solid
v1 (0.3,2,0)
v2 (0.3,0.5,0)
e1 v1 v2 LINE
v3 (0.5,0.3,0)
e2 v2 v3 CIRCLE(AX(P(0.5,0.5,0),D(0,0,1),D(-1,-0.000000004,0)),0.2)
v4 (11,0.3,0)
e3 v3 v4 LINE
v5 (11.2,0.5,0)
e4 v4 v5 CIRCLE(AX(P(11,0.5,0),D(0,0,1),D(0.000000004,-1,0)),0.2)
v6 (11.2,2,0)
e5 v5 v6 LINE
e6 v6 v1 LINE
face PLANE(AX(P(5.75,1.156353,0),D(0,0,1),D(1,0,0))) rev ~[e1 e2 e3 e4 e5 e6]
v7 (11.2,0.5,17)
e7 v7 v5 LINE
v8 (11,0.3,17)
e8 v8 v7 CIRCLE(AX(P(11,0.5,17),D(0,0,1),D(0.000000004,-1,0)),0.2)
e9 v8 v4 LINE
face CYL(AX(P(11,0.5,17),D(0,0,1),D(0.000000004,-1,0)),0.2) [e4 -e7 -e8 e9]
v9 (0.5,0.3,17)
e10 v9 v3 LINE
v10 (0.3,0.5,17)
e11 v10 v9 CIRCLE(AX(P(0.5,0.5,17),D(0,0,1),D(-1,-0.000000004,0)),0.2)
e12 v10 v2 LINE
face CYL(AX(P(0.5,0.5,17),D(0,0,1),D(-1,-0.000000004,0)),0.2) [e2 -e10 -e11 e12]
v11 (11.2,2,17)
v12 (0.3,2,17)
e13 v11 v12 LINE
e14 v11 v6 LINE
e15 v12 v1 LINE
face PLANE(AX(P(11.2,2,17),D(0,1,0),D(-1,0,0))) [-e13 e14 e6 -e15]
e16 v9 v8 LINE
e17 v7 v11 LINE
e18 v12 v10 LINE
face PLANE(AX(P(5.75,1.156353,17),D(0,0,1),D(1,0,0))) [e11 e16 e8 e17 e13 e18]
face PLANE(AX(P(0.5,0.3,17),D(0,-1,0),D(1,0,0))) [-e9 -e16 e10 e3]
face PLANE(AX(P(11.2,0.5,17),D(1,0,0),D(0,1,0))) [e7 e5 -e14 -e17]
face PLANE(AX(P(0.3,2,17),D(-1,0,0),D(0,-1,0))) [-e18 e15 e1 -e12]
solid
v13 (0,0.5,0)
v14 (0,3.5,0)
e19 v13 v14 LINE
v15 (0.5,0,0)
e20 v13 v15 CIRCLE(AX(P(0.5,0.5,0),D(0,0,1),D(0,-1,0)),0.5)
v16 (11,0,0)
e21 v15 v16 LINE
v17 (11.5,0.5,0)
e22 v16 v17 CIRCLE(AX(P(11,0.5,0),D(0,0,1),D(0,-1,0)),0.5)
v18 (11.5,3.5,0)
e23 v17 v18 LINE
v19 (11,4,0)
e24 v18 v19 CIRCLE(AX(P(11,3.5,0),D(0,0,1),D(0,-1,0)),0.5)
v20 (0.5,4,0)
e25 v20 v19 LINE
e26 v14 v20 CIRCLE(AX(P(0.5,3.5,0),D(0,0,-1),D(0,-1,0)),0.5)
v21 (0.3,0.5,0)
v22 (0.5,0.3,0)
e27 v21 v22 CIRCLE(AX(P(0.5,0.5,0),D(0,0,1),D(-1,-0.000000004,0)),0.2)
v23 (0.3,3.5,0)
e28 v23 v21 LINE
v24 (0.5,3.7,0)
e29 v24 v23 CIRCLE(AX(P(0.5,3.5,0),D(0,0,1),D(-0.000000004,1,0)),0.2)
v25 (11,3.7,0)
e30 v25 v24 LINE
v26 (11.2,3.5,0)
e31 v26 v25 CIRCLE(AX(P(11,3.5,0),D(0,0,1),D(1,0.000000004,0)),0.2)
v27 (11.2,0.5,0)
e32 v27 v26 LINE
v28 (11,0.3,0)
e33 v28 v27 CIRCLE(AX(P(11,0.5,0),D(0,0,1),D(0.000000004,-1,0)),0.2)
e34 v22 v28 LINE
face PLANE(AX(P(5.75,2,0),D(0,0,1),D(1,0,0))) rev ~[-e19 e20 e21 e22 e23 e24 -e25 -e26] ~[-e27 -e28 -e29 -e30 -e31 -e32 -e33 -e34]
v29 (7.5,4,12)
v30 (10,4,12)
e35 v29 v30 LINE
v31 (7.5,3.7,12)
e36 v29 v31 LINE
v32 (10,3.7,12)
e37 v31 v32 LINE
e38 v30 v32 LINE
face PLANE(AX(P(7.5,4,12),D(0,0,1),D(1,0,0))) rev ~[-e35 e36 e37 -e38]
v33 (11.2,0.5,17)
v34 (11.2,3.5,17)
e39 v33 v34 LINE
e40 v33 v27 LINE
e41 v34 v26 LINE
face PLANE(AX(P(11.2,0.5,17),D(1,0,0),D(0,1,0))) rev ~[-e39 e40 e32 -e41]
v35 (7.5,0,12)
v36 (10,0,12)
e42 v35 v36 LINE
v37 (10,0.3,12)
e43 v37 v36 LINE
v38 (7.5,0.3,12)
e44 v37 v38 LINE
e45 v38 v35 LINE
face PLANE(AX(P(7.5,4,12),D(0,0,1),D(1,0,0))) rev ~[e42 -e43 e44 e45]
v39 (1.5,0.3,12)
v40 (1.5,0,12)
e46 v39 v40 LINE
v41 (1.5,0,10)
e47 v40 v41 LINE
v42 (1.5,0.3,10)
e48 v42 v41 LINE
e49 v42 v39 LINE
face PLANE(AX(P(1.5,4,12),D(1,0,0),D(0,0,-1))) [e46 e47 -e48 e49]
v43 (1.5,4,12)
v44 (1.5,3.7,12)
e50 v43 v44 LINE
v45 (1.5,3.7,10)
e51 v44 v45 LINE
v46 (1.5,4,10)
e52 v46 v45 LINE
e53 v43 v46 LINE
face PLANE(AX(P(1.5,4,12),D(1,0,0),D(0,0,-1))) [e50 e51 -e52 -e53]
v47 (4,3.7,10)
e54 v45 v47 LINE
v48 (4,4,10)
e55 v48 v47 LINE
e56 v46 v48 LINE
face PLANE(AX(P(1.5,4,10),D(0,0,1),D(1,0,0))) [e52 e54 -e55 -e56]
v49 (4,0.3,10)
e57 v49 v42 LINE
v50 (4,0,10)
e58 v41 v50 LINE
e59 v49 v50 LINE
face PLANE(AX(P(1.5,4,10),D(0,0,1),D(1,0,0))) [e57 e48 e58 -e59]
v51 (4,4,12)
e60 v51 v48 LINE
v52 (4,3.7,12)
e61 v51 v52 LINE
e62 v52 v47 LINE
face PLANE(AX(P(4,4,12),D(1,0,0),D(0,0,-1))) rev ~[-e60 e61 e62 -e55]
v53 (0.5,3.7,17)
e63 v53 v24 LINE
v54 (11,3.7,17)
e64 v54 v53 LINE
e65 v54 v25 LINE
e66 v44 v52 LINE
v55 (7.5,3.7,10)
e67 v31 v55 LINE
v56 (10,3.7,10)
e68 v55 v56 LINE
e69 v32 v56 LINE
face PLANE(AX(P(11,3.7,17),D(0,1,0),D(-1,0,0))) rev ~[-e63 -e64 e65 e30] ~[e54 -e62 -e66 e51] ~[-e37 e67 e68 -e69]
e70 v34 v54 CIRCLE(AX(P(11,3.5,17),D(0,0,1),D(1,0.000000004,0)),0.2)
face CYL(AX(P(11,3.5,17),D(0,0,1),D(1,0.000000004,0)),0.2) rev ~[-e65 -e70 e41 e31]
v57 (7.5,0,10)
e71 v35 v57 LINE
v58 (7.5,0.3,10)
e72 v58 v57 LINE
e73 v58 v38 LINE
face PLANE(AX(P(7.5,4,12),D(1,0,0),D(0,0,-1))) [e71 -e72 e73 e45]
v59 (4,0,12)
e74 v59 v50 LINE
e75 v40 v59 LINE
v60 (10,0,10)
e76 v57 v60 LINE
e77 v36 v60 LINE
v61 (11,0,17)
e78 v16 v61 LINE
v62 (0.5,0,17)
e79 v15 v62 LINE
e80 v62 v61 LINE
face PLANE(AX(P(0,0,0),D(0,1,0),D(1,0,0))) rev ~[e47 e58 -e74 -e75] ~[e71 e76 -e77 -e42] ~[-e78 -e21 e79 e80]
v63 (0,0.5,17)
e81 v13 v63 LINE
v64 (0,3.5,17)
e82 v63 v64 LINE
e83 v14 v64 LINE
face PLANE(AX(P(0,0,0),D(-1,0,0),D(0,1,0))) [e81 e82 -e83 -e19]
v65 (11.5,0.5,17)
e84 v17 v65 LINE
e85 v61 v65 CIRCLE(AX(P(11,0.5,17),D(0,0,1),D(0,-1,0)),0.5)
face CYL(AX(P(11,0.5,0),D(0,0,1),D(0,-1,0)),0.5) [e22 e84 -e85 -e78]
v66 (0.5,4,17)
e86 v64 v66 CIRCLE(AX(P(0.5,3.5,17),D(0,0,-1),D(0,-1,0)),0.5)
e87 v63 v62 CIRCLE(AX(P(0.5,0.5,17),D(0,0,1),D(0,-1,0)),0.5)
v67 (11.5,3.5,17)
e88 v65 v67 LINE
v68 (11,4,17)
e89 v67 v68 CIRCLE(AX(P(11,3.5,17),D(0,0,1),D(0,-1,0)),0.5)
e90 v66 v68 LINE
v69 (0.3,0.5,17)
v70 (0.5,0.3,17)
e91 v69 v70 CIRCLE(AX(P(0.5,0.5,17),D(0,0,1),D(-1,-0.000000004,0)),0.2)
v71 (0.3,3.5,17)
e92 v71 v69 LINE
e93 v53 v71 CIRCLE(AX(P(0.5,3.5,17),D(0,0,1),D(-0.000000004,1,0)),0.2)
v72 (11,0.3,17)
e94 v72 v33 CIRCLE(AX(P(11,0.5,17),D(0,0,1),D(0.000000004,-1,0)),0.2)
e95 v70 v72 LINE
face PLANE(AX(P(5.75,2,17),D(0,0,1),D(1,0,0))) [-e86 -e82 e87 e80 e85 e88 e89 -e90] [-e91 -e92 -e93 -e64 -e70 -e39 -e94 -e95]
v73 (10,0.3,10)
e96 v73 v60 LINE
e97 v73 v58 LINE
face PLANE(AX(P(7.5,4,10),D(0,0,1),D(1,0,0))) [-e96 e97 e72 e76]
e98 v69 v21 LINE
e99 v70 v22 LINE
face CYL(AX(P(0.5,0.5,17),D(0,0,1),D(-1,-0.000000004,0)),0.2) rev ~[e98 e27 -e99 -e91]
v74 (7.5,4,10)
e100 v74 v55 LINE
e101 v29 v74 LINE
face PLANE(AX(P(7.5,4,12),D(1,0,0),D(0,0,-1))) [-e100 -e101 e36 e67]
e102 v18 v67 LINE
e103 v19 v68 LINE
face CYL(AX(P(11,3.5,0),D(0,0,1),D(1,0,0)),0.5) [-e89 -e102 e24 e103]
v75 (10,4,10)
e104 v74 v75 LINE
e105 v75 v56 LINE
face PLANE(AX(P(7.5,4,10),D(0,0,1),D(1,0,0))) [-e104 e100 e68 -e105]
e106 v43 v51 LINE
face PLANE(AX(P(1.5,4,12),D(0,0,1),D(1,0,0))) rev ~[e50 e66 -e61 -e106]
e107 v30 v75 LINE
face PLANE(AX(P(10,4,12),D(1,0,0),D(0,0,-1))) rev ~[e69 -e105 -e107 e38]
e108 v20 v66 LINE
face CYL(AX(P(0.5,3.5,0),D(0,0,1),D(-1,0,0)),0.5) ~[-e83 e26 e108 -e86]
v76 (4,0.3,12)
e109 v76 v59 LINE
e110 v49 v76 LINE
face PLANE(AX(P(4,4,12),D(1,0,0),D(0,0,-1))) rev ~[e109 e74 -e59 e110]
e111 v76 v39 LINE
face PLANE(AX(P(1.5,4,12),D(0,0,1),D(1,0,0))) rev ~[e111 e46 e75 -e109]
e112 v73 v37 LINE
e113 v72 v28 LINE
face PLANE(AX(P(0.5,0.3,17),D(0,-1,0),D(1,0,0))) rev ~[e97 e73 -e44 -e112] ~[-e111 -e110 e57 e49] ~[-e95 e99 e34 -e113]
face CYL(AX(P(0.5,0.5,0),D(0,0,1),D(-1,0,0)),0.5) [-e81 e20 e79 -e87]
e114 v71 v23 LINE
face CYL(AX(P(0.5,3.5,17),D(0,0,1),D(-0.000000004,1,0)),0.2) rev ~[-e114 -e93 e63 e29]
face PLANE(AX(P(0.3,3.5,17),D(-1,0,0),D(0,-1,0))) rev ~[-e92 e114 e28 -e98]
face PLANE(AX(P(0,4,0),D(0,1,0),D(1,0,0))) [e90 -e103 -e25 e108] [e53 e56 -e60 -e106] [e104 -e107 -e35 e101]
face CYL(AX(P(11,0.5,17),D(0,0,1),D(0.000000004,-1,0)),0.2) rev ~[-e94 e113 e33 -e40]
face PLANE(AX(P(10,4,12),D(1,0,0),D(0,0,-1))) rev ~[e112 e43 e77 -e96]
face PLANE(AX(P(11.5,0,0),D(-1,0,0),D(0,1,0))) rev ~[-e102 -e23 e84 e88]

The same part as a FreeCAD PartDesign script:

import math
import FreeCAD as App
import Part
import Sketcher
from FreeCAD import Vector
Q = App.Units.Quantity


def edges_at(feature, points):
    """Names of the edges that pass closest to the given points."""
    edges = feature.Shape.Edges
    near = lambda p: min(range(len(edges)), key=lambda i: edges[i].distToShape(Part.Vertex(*p))[0])
    return sorted({f"Edge{near(p) + 1}" for p in points})

doc = App.newDocument("Part")
body = doc.addObject("PartDesign::Body", "Body")

# Sketch on XY plane
sketch1 = body.newObject("Sketcher::SketchObject", "Sketch")
sketch1.AttachmentSupport = (doc.getObject("XY_Plane"), [""])
sketch1.MapMode = "FlatFace"
sketch1.addGeometry(Part.LineSegment(Vector(0, 4, 0), Vector(0, 0, 0)), False)
sketch1.addGeometry(Part.LineSegment(Vector(0, 0, 0), Vector(11.5, 0, 0)), False)
sketch1.addGeometry(Part.LineSegment(Vector(11.5, 0, 0), Vector(11.5, 4, 0)), False)
sketch1.addGeometry(Part.LineSegment(Vector(11.5, 4, 0), Vector(0, 4, 0)), False)
sketch1.addConstraint(Sketcher.Constraint("Coincident", 0, 2, 1, 1))
sketch1.addConstraint(Sketcher.Constraint("Coincident", 1, 2, 2, 1))
sketch1.addConstraint(Sketcher.Constraint("Coincident", 2, 2, 3, 1))
sketch1.addConstraint(Sketcher.Constraint("Coincident", 3, 2, 0, 1))
sketch1.addConstraint(Sketcher.Constraint("Vertical", 0))
sketch1.addConstraint(Sketcher.Constraint("Horizontal", 1))
sketch1.addConstraint(Sketcher.Constraint("Vertical", 2))
sketch1.addConstraint(Sketcher.Constraint("Horizontal", 3))
sketch1.addConstraint(Sketcher.Constraint("Coincident", 0, 2, -1, 1))
sketch1.addConstraint(Sketcher.Constraint("DistanceY", 0, 2, 0, 1, Q("4 mm")))
sketch1.addConstraint(Sketcher.Constraint("DistanceX", 1, 1, 1, 2, Q("11.5 mm")))
pad1 = body.newObject("PartDesign::Pad", "Pad")
pad1.Profile = sketch1
pad1.Length = 17
doc.recompute()

fillet = body.newObject("PartDesign::Fillet", "Fillet")
fillet.Base = (pad1, edges_at(pad1, [
    (0, 4, 8.5),
    (11.5, 4, 8.5),
    (11.5, 0, 8.5),
    (0, 0, 8.5),
]))
fillet.Radius = 0.5

# Sketch on XY plane
sketch2 = body.newObject("Sketcher::SketchObject", "Sketch001")
sketch2.AttachmentSupport = (doc.getObject("XY_Plane"), [""])
sketch2.MapMode = "FlatFace"
sketch2.AttachmentOffset = App.Placement(Vector(0, 0, 17), App.Rotation())
sketch2.addGeometry(Part.LineSegment(Vector(11.2, 0.5, 0), Vector(11.2, 3.5, 0)), False)
sketch2.addGeometry(Part.ArcOfCircle(Part.Circle(Vector(11, 3.5, 0), Vector(0, 0, 1), 0.2), math.radians(0), math.radians(90)), False)
sketch2.addGeometry(Part.LineSegment(Vector(11, 3.7, 0), Vector(0.5, 3.7, 0)), False)
sketch2.addGeometry(Part.ArcOfCircle(Part.Circle(Vector(0.5, 3.5, 0), Vector(0, 0, 1), 0.2), math.radians(90), math.radians(180)), False)
sketch2.addGeometry(Part.LineSegment(Vector(0.3, 3.5, 0), Vector(0.3, 0.5, 0)), False)
sketch2.addGeometry(Part.ArcOfCircle(Part.Circle(Vector(0.5, 0.5, 0), Vector(0, 0, 1), 0.2), math.radians(-180), math.radians(-90)), False)
sketch2.addGeometry(Part.LineSegment(Vector(0.5, 0.3, 0), Vector(11, 0.3, 0)), False)
sketch2.addGeometry(Part.ArcOfCircle(Part.Circle(Vector(11, 0.5, 0), Vector(0, 0, 1), 0.2), math.radians(-90), math.radians(0)), False)
sketch2.addConstraint(Sketcher.Constraint("Tangent", 0, 2, 1, 1))
sketch2.addConstraint(Sketcher.Constraint("Tangent", 1, 2, 2, 1))
sketch2.addConstraint(Sketcher.Constraint("Tangent", 2, 2, 3, 1))
sketch2.addConstraint(Sketcher.Constraint("Tangent", 3, 2, 4, 1))
sketch2.addConstraint(Sketcher.Constraint("Tangent", 4, 2, 5, 1))
sketch2.addConstraint(Sketcher.Constraint("Tangent", 5, 2, 6, 1))
sketch2.addConstraint(Sketcher.Constraint("Tangent", 6, 2, 7, 1))
sketch2.addConstraint(Sketcher.Constraint("Tangent", 7, 2, 0, 1))
sketch2.addConstraint(Sketcher.Constraint("Vertical", 0))
sketch2.addConstraint(Sketcher.Constraint("Horizontal", 2))
sketch2.addConstraint(Sketcher.Constraint("Vertical", 4))
sketch2.addConstraint(Sketcher.Constraint("Horizontal", 6))
sketch2.addConstraint(Sketcher.Constraint("Equal", 1, 3))
sketch2.addConstraint(Sketcher.Constraint("Equal", 3, 5))
sketch2.addConstraint(Sketcher.Constraint("Equal", 5, 7))
sketch2.addConstraint(Sketcher.Constraint("Radius", 1, Q("0.2 mm")))
sketch2.addConstraint(Sketcher.Constraint("DistanceY", 0, 1, 0, 2, Q("3 mm")))
sketch2.addConstraint(Sketcher.Constraint("DistanceX", 2, 2, 2, 1, Q("10.5 mm")))
sketch2.addConstraint(Sketcher.Constraint("DistanceX", -1, 1, 1, 3, Q("11 mm")))
sketch2.addConstraint(Sketcher.Constraint("DistanceY", -1, 1, 1, 3, Q("3.5 mm")))
pocket1 = body.newObject("PartDesign::Pocket", "Pocket")
pocket1.Profile = sketch2
pocket1.Type = "ThroughAll"

# Sketch on XZ plane
sketch3 = body.newObject("Sketcher::SketchObject", "Sketch002")
sketch3.AttachmentSupport = (doc.getObject("XZ_Plane"), [""])
sketch3.MapMode = "FlatFace"
sketch3.AttachmentOffset = App.Placement(Vector(0, 0, -4), App.Rotation())
sketch3.addGeometry(Part.LineSegment(Vector(1.5, 10, 0), Vector(1.5, 12, 0)), False)
sketch3.addGeometry(Part.LineSegment(Vector(1.5, 12, 0), Vector(4, 12, 0)), False)
sketch3.addGeometry(Part.LineSegment(Vector(4, 12, 0), Vector(4, 10, 0)), False)
sketch3.addGeometry(Part.LineSegment(Vector(4, 10, 0), Vector(1.5, 10, 0)), False)
sketch3.addGeometry(Part.LineSegment(Vector(7.5, 10, 0), Vector(7.5, 12, 0)), False)
sketch3.addGeometry(Part.LineSegment(Vector(7.5, 12, 0), Vector(10, 12, 0)), False)
sketch3.addGeometry(Part.LineSegment(Vector(10, 12, 0), Vector(10, 10, 0)), False)
sketch3.addGeometry(Part.LineSegment(Vector(10, 10, 0), Vector(7.5, 10, 0)), False)
sketch3.addConstraint(Sketcher.Constraint("Coincident", 0, 2, 1, 1))
sketch3.addConstraint(Sketcher.Constraint("Coincident", 1, 2, 2, 1))
sketch3.addConstraint(Sketcher.Constraint("Coincident", 2, 2, 3, 1))
sketch3.addConstraint(Sketcher.Constraint("Coincident", 3, 2, 0, 1))
sketch3.addConstraint(Sketcher.Constraint("Coincident", 4, 2, 5, 1))
sketch3.addConstraint(Sketcher.Constraint("Coincident", 5, 2, 6, 1))
sketch3.addConstraint(Sketcher.Constraint("Coincident", 6, 2, 7, 1))
sketch3.addConstraint(Sketcher.Constraint("Coincident", 7, 2, 4, 1))
sketch3.addConstraint(Sketcher.Constraint("Vertical", 0))
sketch3.addConstraint(Sketcher.Constraint("Horizontal", 1))
sketch3.addConstraint(Sketcher.Constraint("Vertical", 2))
sketch3.addConstraint(Sketcher.Constraint("Horizontal", 3))
sketch3.addConstraint(Sketcher.Constraint("Vertical", 4))
sketch3.addConstraint(Sketcher.Constraint("Horizontal", 5))
sketch3.addConstraint(Sketcher.Constraint("Vertical", 6))
sketch3.addConstraint(Sketcher.Constraint("Horizontal", 7))
sketch3.addConstraint(Sketcher.Constraint("Horizontal", 1, 2, 4, 2))
sketch3.addConstraint(Sketcher.Constraint("Horizontal", 3, 2, 6, 2))
sketch3.addConstraint(Sketcher.Constraint("Equal", 3, 5))
sketch3.addConstraint(Sketcher.Constraint("DistanceY", 0, 1, 0, 2, Q("2 mm")))
sketch3.addConstraint(Sketcher.Constraint("DistanceX", 1, 1, 1, 2, Q("2.5 mm")))
sketch3.addConstraint(Sketcher.Constraint("DistanceY", -1, 1, 0, 2, Q("12 mm")))
sketch3.addConstraint(Sketcher.Constraint("DistanceX", -1, 1, 1, 2, Q("4 mm")))
sketch3.addConstraint(Sketcher.Constraint("DistanceX", -1, 1, 5, 2, Q("10 mm")))
pocket2 = body.newObject("PartDesign::Pocket", "Pocket001")
pocket2.Profile = sketch3
pocket2.Type = "ThroughAll"
pocket2.Reversed = True
body2 = doc.addObject("PartDesign::Body", "Body001")

# Sketch on XY plane
sketch4 = body2.newObject("Sketcher::SketchObject", "Sketch003")
sketch4.AttachmentSupport = (doc.getObject("XY_Plane001"), [""])
sketch4.MapMode = "FlatFace"
sketch4.AttachmentOffset = App.Placement(Vector(0, 0, 17), App.Rotation())
sketch4.addGeometry(Part.LineSegment(Vector(11.2, 0.5, 0), Vector(11.2, 2, 0)), False)
sketch4.addGeometry(Part.LineSegment(Vector(11.2, 2, 0), Vector(0.3, 2, 0)), False)
sketch4.addGeometry(Part.LineSegment(Vector(0.3, 2, 0), Vector(0.3, 0.5, 0)), False)
sketch4.addGeometry(Part.ArcOfCircle(Part.Circle(Vector(0.5, 0.5, 0), Vector(0, 0, 1), 0.2), math.radians(-180), math.radians(-90)), False)
sketch4.addGeometry(Part.LineSegment(Vector(0.5, 0.3, 0), Vector(11, 0.3, 0)), False)
sketch4.addGeometry(Part.ArcOfCircle(Part.Circle(Vector(11, 0.5, 0), Vector(0, 0, 1), 0.2), math.radians(-90), math.radians(0)), False)
sketch4.addConstraint(Sketcher.Constraint("Coincident", 0, 2, 1, 1))
sketch4.addConstraint(Sketcher.Constraint("Coincident", 1, 2, 2, 1))
sketch4.addConstraint(Sketcher.Constraint("Tangent", 2, 2, 3, 1))
sketch4.addConstraint(Sketcher.Constraint("Tangent", 3, 2, 4, 1))
sketch4.addConstraint(Sketcher.Constraint("Tangent", 4, 2, 5, 1))
sketch4.addConstraint(Sketcher.Constraint("Tangent", 5, 2, 0, 1))
sketch4.addConstraint(Sketcher.Constraint("Vertical", 0))
sketch4.addConstraint(Sketcher.Constraint("Horizontal", 1))
sketch4.addConstraint(Sketcher.Constraint("Vertical", 2))
sketch4.addConstraint(Sketcher.Constraint("Horizontal", 4))
sketch4.addConstraint(Sketcher.Constraint("Equal", 3, 5))
sketch4.addConstraint(Sketcher.Constraint("Radius", 3, Q("0.2 mm")))
sketch4.addConstraint(Sketcher.Constraint("DistanceX", 1, 2, 1, 1, Q("10.9 mm")))
sketch4.addConstraint(Sketcher.Constraint("DistanceY", 0, 1, 0, 2, Q("1.5 mm")))
sketch4.addConstraint(Sketcher.Constraint("DistanceX", -1, 1, 5, 3, Q("11 mm")))
sketch4.addConstraint(Sketcher.Constraint("DistanceY", -1, 1, 0, 2, Q("2 mm")))
pad2 = body2.newObject("PartDesign::Pad", "Pad001")
pad2.Profile = sketch4
pad2.Length = 17
pad2.Reversed = True

doc.recompute()
